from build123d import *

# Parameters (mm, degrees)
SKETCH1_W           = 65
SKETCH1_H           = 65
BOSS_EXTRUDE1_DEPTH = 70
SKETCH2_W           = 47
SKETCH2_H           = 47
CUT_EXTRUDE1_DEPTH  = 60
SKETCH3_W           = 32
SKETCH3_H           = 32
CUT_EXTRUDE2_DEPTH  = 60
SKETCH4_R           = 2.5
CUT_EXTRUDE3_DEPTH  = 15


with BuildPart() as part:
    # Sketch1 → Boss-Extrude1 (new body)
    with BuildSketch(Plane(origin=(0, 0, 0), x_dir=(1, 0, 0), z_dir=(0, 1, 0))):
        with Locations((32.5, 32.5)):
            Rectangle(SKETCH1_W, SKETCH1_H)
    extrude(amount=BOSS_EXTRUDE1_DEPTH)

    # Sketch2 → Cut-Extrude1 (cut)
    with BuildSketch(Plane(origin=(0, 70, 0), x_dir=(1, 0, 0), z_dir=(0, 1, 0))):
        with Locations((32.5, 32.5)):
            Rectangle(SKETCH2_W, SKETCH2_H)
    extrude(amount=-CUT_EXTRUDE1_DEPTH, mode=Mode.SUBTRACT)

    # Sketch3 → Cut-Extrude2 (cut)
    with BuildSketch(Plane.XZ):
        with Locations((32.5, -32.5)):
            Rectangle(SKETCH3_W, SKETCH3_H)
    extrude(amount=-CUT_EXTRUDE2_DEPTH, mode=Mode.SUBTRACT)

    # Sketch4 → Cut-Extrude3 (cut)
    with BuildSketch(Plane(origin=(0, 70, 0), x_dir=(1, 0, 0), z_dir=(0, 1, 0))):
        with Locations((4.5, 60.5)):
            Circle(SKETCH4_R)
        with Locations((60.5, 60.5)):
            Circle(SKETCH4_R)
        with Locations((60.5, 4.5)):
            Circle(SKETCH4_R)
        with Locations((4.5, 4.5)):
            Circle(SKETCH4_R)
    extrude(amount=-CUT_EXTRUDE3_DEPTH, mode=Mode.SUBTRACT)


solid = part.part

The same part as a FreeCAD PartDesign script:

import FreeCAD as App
import Part
import Sketcher


def add_polygon(sketch, points):
    """Adds a closed chain of lines whose ends are joined by coincident constraints."""
    first, n = sketch.GeometryCount, len(points)
    for a, b in zip(points, points[1:] + points[:1]):
        sketch.addGeometry(Part.LineSegment(App.Vector(*a, 0), App.Vector(*b, 0)), False)
    for i in range(n):
        sketch.addConstraint(Sketcher.Constraint("Coincident", first + i, 2, first + (i + 1) % n, 1))

doc = App.newDocument("Part")
body = doc.addObject("PartDesign::Body", "Body")

sketch1 = doc.addObject("Sketcher::SketchObject", "Sketch")
body.addObject(sketch1)
sketch1.AttachmentSupport = (doc.XZ_Plane, [""])
sketch1.MapMode = "FlatFace"
add_polygon(sketch1, [(0, -65), (0, 0), (65, 0), (65, -65)])
sketch1.addConstraint(Sketcher.Constraint("Vertical", 0))
sketch1.addConstraint(Sketcher.Constraint("Horizontal", 1))
sketch1.addConstraint(Sketcher.Constraint("Vertical", 2))
sketch1.addConstraint(Sketcher.Constraint("Horizontal", 3))
sketch1.addConstraint(Sketcher.Constraint("Coincident", 0, 2, -1, 1))
sketch1.addConstraint(Sketcher.Constraint("Equal", 3, 0))
sketch1.addConstraint(Sketcher.Constraint("DistanceX", 1, 1, 1, 2, 65.0))
pad1 = doc.addObject("PartDesign::Pad", "Pad")
body.addObject(pad1)
pad1.Profile = sketch1
pad1.Length = 70
pad1.Reversed = True

sketch2 = doc.addObject("Sketcher::SketchObject", "Sketch001")
body.addObject(sketch2)
sketch2.AttachmentSupport = (doc.XZ_Plane, [""])
sketch2.MapMode = "FlatFace"
sketch2.AttachmentOffset = App.Placement(App.Vector(0, 0, -70), App.Rotation())
add_polygon(sketch2, [(9, -56), (9, -9), (56, -9), (56, -56)])
sketch2.addConstraint(Sketcher.Constraint("Vertical", 0))
sketch2.addConstraint(Sketcher.Constraint("Horizontal", 1))
sketch2.addConstraint(Sketcher.Constraint("Vertical", 2))
sketch2.addConstraint(Sketcher.Constraint("Horizontal", 3))
sketch2.addConstraint(Sketcher.Constraint("Equal", 3, 0))
sketch2.addConstraint(Sketcher.Constraint("DistanceX", 1, 1, 1, 2, 47.0))
sketch2.addConstraint(Sketcher.Constraint("DistanceX", -1, 1, 0, 2, 9.0))
sketch2.addConstraint(Sketcher.Constraint("DistanceY", 0, 2, -1, 1, 9.0))
pocket1 = doc.addObject("PartDesign::Pocket", "Pocket")
body.addObject(pocket1)
pocket1.Profile = sketch2
pocket1.Length = 60
pocket1.Reversed = True

sketch3 = doc.addObject("Sketcher::SketchObject", "Sketch002")
body.addObject(sketch3)
sketch3.AttachmentSupport = (doc.XZ_Plane, [""])
sketch3.MapMode = "FlatFace"
add_polygon(sketch3, [(16, -16), (16, -48), (48, -48), (48, -16)])
sketch3.addConstraint(Sketcher.Constraint("Vertical", 0))
sketch3.addConstraint(Sketcher.Constraint("Horizontal", 1))
sketch3.addConstraint(Sketcher.Constraint("Vertical", 2))
sketch3.addConstraint(Sketcher.Constraint("Horizontal", 3))
sketch3.addConstraint(Sketcher.Constraint("Equal", 3, 0))
sketch3.addConstraint(Sketcher.Constraint("DistanceX", 1, 1, 1, 2, 32.0))
sketch3.addConstraint(Sketcher.Constraint("DistanceX", -1, 1, 0, 2, 16.5))
sketch3.addConstraint(Sketcher.Constraint("DistanceY", 0, 2, -1, 1, 48.5))
pocket2 = doc.addObject("PartDesign::Pocket", "Pocket001")
body.addObject(pocket2)
pocket2.Profile = sketch3
pocket2.Length = 60

sketch4 = doc.addObject("Sketcher::SketchObject", "Sketch003")
body.addObject(sketch4)
sketch4.AttachmentSupport = (doc.XZ_Plane, [""])
sketch4.MapMode = "FlatFace"
sketch4.AttachmentOffset = App.Placement(App.Vector(0, 0, -70), App.Rotation())
sketch4.addGeometry(Part.Circle(App.Vector(4.5, -60.5, 0), App.Vector(0, 0, 1), 2.5), False)
sketch4.addGeometry(Part.Circle(App.Vector(60.5, -60.5, 0), App.Vector(0, 0, 1), 2.5), False)
sketch4.addGeometry(Part.Circle(App.Vector(60.5, -4.5, 0), App.Vector(0, 0, 1), 2.5), False)
sketch4.addGeometry(Part.Circle(App.Vector(4.5, -4.5, 0), App.Vector(0, 0, 1), 2.5), False)
sketch4.addConstraint(Sketcher.Constraint("Equal", 0, 1))
sketch4.addConstraint(Sketcher.Constraint("Equal", 1, 2))
sketch4.addConstraint(Sketcher.Constraint("Equal", 2, 3))
sketch4.addConstraint(Sketcher.Constraint("Horizontal", 0, 3, 1, 3))
sketch4.addConstraint(Sketcher.Constraint("Horizontal", 2, 3, 3, 3))
sketch4.addConstraint(Sketcher.Constraint("Vertical", 1, 3, 2, 3))
sketch4.addConstraint(Sketcher.Constraint("Vertical", 0, 3, 3, 3))
sketch4.addConstraint(Sketcher.Constraint("Diameter", 0, 5.0))
sketch4.addConstraint(Sketcher.Constraint("DistanceX", 0, 3, 1, 3, 56.0))
sketch4.addConstraint(Sketcher.Constraint("DistanceY", 1, 3, 2, 3, 56.0))
sketch4.addConstraint(Sketcher.Constraint("DistanceX", -1, 1, 0, 3, 4.5))
sketch4.addConstraint(Sketcher.Constraint("DistanceY", 0, 3, -1, 1, 60.5))
pocket3 = doc.addObject("PartDesign::Pocket", "Pocket002")
body.addObject(pocket3)
pocket3.Profile = sketch4
pocket3.Length = 15
pocket3.Reversed = True

doc.recompute()
